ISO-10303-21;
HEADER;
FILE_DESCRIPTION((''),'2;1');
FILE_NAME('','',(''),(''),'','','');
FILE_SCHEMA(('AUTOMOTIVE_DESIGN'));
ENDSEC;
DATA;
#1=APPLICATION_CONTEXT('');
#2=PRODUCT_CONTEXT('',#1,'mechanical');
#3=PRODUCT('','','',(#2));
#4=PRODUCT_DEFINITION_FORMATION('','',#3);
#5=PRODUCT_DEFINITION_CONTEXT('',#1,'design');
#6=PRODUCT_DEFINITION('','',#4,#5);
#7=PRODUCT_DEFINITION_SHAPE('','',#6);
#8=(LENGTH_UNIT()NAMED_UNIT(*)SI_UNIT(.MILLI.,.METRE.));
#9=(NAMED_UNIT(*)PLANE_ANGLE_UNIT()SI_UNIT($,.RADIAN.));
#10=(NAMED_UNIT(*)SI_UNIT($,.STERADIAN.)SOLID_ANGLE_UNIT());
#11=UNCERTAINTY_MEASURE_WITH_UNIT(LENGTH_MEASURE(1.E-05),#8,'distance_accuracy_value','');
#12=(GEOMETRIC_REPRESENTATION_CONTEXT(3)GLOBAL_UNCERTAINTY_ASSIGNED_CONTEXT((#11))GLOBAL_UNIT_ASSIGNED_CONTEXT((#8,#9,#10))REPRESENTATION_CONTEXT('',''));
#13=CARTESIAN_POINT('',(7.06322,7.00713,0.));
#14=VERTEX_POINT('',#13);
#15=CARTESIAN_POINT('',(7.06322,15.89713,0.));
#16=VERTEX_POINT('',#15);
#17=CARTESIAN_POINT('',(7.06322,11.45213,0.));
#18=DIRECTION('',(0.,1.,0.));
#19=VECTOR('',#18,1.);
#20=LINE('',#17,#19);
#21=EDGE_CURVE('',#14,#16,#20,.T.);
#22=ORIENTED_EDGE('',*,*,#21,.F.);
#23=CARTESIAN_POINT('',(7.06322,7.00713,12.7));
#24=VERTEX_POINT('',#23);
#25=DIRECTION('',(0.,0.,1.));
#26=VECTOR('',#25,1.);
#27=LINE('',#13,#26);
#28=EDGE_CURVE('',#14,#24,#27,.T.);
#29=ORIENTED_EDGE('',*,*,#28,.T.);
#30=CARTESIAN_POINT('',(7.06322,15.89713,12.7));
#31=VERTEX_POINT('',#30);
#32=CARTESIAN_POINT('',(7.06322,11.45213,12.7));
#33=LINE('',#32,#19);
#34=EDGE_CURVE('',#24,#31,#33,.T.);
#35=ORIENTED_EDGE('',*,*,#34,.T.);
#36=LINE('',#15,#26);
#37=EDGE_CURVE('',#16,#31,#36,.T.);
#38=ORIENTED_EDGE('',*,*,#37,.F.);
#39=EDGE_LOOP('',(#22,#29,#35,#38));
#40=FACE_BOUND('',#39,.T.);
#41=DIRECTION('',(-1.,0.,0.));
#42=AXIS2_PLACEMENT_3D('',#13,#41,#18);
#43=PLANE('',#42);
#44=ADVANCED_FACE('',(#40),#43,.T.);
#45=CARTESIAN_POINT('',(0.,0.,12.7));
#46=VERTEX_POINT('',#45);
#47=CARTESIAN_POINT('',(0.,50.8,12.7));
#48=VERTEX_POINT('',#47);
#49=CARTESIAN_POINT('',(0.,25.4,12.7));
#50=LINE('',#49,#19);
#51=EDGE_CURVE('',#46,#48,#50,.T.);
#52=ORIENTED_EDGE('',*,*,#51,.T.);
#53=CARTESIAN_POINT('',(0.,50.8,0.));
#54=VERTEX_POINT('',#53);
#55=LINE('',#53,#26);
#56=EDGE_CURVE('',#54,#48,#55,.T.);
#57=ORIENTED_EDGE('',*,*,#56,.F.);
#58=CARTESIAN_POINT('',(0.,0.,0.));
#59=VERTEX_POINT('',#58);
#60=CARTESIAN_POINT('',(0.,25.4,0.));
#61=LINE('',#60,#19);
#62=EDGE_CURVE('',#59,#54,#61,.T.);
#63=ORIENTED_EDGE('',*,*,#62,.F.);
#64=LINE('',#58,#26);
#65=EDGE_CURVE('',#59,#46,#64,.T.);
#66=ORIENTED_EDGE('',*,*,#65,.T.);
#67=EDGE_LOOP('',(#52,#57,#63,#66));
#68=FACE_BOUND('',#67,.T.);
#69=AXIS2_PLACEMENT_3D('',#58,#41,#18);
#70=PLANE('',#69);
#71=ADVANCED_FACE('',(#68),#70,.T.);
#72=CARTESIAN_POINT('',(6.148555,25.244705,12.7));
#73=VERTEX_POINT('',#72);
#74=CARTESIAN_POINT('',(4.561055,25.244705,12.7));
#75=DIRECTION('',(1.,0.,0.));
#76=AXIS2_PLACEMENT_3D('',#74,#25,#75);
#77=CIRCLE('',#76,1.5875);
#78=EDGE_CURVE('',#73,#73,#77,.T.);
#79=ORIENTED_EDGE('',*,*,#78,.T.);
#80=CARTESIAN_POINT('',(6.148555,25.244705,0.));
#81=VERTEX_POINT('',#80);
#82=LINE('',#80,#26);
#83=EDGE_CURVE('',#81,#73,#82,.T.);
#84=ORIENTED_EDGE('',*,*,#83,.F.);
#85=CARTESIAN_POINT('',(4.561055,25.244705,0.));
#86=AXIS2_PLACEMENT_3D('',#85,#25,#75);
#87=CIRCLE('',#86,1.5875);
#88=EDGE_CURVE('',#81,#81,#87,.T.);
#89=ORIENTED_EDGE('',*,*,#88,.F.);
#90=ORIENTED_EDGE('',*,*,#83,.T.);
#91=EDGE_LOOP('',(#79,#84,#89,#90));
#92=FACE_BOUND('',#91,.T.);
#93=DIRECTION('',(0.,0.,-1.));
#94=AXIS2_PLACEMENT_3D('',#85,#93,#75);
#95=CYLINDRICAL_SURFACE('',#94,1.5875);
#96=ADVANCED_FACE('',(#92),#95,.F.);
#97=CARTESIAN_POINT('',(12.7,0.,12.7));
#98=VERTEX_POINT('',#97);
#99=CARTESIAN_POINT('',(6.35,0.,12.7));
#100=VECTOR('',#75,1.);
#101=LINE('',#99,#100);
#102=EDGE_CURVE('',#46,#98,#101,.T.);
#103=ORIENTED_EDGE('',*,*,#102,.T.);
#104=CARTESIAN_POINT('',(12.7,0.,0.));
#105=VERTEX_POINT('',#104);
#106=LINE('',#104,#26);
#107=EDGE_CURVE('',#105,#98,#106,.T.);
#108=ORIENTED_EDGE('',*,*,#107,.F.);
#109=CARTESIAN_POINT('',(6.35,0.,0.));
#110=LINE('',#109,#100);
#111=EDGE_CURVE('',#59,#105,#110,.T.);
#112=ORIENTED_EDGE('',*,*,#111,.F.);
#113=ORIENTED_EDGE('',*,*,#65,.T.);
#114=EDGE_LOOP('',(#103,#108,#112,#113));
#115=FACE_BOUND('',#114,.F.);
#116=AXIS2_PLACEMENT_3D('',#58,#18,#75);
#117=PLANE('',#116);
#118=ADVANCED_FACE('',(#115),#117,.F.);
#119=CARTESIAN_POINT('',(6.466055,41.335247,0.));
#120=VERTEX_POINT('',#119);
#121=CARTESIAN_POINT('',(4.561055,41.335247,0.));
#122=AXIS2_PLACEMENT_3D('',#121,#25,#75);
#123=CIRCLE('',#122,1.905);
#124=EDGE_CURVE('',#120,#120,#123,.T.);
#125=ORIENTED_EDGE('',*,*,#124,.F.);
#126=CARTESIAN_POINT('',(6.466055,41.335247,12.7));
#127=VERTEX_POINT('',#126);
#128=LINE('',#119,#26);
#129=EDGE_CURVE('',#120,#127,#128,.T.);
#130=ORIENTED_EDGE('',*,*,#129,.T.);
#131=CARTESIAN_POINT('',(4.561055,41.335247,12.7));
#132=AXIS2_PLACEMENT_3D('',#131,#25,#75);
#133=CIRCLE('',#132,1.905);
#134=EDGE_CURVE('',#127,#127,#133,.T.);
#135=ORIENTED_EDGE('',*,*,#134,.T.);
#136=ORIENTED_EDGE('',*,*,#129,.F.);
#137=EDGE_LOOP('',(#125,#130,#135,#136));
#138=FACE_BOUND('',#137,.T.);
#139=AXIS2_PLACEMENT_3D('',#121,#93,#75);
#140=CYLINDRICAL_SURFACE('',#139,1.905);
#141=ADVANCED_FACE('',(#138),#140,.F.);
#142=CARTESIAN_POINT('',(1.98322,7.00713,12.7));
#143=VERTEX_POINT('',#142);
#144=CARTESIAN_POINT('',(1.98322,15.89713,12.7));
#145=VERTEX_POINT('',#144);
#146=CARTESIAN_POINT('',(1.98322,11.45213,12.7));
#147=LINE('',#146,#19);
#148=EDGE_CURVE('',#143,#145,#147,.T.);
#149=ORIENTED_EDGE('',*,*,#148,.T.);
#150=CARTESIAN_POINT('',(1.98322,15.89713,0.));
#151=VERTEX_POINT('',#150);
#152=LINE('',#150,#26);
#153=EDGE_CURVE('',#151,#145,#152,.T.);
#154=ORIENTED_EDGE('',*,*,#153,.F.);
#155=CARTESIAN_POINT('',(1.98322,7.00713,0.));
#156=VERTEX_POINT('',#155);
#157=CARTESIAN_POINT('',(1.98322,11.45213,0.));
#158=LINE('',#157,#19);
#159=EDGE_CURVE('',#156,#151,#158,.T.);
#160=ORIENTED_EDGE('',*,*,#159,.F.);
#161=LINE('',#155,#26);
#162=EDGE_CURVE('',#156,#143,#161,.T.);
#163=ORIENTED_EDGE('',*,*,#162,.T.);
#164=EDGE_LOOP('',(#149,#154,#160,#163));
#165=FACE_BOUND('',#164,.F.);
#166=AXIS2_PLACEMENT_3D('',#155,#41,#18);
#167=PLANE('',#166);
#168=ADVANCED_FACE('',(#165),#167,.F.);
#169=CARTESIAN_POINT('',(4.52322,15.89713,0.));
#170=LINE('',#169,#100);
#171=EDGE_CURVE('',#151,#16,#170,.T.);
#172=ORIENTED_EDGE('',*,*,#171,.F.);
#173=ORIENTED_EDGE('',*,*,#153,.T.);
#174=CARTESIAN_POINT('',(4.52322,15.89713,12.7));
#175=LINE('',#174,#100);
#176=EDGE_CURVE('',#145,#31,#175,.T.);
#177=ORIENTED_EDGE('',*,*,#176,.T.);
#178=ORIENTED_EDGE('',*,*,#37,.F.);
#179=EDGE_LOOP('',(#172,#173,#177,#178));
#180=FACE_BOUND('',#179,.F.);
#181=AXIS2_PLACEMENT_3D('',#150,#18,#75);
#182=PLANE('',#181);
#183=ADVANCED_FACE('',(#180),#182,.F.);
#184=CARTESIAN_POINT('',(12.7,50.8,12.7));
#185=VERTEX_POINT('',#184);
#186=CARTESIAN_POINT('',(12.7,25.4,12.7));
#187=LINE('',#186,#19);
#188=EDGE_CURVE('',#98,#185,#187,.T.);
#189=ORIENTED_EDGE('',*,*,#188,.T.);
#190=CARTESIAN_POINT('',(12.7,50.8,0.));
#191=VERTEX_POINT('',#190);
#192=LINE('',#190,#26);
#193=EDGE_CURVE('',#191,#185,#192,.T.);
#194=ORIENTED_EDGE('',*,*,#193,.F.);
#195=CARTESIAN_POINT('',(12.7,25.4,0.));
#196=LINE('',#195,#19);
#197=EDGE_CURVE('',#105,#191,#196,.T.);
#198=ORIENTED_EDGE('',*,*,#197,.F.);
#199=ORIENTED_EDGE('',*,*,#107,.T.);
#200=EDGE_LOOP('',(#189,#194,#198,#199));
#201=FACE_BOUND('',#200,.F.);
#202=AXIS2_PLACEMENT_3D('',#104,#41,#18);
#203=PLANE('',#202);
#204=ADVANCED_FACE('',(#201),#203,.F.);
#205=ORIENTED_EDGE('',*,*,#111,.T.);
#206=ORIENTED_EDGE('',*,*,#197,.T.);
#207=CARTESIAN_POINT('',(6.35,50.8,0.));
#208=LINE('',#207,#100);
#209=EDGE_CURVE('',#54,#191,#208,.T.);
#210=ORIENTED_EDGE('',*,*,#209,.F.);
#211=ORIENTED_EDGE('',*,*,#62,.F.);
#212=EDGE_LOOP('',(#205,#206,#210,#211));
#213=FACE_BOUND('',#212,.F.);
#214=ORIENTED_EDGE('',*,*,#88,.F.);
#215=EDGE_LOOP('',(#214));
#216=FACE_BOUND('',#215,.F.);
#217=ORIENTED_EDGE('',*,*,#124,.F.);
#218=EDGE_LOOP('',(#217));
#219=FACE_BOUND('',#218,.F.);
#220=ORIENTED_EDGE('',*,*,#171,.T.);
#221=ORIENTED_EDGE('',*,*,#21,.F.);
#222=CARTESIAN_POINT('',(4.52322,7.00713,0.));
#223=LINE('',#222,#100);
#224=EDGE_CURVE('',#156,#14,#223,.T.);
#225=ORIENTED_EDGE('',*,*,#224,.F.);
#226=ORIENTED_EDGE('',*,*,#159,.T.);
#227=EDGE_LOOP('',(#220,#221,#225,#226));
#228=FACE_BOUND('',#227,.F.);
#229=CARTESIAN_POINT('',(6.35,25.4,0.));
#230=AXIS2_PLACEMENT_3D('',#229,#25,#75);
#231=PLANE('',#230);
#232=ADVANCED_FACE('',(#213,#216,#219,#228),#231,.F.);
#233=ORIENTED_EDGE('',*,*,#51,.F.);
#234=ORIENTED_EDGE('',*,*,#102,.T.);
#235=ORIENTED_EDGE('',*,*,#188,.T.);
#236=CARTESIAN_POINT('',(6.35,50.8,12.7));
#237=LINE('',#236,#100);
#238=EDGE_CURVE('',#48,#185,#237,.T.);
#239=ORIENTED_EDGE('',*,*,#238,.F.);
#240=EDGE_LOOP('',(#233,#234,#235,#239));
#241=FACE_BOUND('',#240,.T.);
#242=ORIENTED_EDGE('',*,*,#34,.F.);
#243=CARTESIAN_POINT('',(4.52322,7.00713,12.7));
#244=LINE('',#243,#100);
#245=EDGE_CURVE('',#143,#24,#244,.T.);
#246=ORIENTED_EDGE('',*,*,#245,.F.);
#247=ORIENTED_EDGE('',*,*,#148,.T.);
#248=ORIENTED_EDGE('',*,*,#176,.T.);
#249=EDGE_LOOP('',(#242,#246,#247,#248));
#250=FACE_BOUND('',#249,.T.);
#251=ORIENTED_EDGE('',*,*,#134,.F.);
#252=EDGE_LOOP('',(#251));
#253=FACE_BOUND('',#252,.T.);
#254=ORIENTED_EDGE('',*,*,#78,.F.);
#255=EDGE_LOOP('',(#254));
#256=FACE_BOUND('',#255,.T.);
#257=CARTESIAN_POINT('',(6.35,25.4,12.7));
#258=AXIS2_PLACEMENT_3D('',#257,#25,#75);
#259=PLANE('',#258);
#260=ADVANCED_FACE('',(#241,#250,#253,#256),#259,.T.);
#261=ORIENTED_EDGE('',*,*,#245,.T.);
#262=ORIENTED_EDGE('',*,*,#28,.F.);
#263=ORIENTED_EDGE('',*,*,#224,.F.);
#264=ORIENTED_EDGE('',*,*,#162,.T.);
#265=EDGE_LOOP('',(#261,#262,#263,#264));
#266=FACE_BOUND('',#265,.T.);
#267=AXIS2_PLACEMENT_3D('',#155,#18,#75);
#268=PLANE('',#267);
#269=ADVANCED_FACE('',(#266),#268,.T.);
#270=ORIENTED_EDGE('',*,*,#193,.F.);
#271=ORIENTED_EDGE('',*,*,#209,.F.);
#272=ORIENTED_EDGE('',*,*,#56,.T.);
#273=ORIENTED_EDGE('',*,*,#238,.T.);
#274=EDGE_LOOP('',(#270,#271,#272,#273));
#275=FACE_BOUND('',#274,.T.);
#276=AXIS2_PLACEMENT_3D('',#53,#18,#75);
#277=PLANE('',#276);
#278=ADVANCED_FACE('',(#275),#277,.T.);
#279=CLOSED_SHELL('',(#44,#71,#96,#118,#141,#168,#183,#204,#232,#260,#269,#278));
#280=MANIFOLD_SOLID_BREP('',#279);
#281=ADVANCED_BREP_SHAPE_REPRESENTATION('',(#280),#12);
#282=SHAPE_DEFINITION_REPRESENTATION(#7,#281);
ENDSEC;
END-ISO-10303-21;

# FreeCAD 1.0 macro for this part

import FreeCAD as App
import Part
import Sketcher
Q = App.Units.Quantity


def add_polygon(sketch, points):
    """Adds a closed chain of lines whose ends are joined by coincident constraints."""
    first, n = sketch.GeometryCount, len(points)
    for a, b in zip(points, points[1:] + points[:1]):
        sketch.addGeometry(Part.LineSegment(App.Vector(*a, 0), App.Vector(*b, 0)), False)
    for i in range(n):
        sketch.addConstraint(Sketcher.Constraint("Coincident", first + i, 2, first + (i + 1) % n, 1))

doc = App.newDocument("Part")
body = doc.addObject("PartDesign::Body", "Body")

# Sketch on XY plane
sketch1 = body.newObject("Sketcher::SketchObject", "Sketch")
sketch1.AttachmentSupport = (doc.getObject("XY_Plane"), [""])
sketch1.MapMode = "FlatFace"
add_polygon(sketch1, [(0, 50.8), (0, 0), (12.7, 0), (12.7, 50.8)])  # lines 0-3
add_polygon(sketch1, [(7.06322, 7.00713), (1.98322, 7.00713), (1.98322, 15.89713), (7.06322, 15.89713)])  # lines 4-7
sketch1.addGeometry(Part.Circle(App.Vector(4.561055, 25.244705, 0), App.Vector(0, 0, 1), 1.5875), False)  # 8
sketch1.addGeometry(Part.Circle(App.Vector(4.561055, 41.335247, 0), App.Vector(0, 0, 1), 1.905), False)  # 9
sketch1.addConstraint([
    Sketcher.Constraint("Vertical", 0),
    Sketcher.Constraint("Horizontal", 1),
    Sketcher.Constraint("Vertical", 2),
    Sketcher.Constraint("Horizontal", 3),
    Sketcher.Constraint("Horizontal", 4),
    Sketcher.Constraint("Vertical", 5),
    Sketcher.Constraint("Horizontal", 6),
    Sketcher.Constraint("Vertical", 7),
    Sketcher.Constraint("Coincident", 0, 2, -1, 1),
    Sketcher.Constraint("Vertical", 8, 3, 9, 3),
    Sketcher.Constraint("Diameter", 9, Q("0.15 in")),
    Sketcher.Constraint("DistanceY", 0, 2, 0, 1, Q("2 in")),
    Sketcher.Constraint("Diameter", 8, Q("0.125 in")),
    Sketcher.Constraint("DistanceX", 1, 1, 1, 2, Q("0.5 in")),
    Sketcher.Constraint("DistanceX", 4, 2, 4, 1, Q("0.2 in")),
    Sketcher.Constraint("DistanceY", 5, 1, 5, 2, Q("0.35 in")),
    Sketcher.Constraint("DistanceX", -1, 1, 4, 2, Q("1.98322 mm")),
    Sketcher.Constraint("DistanceY", -1, 1, 4, 2, Q("7.00713 mm")),
    Sketcher.Constraint("DistanceX", -1, 1, 8, 3, Q("4.561055 mm")),
    Sketcher.Constraint("DistanceY", -1, 1, 8, 3, Q("25.244705 mm")),
    Sketcher.Constraint("DistanceY", -1, 1, 9, 3, Q("41.335247 mm")),
])
pad1 = body.newObject("PartDesign::Pad", "Pad")
pad1.Profile = sketch1
pad1.Length = Q("0.5 in")

doc.recompute()
